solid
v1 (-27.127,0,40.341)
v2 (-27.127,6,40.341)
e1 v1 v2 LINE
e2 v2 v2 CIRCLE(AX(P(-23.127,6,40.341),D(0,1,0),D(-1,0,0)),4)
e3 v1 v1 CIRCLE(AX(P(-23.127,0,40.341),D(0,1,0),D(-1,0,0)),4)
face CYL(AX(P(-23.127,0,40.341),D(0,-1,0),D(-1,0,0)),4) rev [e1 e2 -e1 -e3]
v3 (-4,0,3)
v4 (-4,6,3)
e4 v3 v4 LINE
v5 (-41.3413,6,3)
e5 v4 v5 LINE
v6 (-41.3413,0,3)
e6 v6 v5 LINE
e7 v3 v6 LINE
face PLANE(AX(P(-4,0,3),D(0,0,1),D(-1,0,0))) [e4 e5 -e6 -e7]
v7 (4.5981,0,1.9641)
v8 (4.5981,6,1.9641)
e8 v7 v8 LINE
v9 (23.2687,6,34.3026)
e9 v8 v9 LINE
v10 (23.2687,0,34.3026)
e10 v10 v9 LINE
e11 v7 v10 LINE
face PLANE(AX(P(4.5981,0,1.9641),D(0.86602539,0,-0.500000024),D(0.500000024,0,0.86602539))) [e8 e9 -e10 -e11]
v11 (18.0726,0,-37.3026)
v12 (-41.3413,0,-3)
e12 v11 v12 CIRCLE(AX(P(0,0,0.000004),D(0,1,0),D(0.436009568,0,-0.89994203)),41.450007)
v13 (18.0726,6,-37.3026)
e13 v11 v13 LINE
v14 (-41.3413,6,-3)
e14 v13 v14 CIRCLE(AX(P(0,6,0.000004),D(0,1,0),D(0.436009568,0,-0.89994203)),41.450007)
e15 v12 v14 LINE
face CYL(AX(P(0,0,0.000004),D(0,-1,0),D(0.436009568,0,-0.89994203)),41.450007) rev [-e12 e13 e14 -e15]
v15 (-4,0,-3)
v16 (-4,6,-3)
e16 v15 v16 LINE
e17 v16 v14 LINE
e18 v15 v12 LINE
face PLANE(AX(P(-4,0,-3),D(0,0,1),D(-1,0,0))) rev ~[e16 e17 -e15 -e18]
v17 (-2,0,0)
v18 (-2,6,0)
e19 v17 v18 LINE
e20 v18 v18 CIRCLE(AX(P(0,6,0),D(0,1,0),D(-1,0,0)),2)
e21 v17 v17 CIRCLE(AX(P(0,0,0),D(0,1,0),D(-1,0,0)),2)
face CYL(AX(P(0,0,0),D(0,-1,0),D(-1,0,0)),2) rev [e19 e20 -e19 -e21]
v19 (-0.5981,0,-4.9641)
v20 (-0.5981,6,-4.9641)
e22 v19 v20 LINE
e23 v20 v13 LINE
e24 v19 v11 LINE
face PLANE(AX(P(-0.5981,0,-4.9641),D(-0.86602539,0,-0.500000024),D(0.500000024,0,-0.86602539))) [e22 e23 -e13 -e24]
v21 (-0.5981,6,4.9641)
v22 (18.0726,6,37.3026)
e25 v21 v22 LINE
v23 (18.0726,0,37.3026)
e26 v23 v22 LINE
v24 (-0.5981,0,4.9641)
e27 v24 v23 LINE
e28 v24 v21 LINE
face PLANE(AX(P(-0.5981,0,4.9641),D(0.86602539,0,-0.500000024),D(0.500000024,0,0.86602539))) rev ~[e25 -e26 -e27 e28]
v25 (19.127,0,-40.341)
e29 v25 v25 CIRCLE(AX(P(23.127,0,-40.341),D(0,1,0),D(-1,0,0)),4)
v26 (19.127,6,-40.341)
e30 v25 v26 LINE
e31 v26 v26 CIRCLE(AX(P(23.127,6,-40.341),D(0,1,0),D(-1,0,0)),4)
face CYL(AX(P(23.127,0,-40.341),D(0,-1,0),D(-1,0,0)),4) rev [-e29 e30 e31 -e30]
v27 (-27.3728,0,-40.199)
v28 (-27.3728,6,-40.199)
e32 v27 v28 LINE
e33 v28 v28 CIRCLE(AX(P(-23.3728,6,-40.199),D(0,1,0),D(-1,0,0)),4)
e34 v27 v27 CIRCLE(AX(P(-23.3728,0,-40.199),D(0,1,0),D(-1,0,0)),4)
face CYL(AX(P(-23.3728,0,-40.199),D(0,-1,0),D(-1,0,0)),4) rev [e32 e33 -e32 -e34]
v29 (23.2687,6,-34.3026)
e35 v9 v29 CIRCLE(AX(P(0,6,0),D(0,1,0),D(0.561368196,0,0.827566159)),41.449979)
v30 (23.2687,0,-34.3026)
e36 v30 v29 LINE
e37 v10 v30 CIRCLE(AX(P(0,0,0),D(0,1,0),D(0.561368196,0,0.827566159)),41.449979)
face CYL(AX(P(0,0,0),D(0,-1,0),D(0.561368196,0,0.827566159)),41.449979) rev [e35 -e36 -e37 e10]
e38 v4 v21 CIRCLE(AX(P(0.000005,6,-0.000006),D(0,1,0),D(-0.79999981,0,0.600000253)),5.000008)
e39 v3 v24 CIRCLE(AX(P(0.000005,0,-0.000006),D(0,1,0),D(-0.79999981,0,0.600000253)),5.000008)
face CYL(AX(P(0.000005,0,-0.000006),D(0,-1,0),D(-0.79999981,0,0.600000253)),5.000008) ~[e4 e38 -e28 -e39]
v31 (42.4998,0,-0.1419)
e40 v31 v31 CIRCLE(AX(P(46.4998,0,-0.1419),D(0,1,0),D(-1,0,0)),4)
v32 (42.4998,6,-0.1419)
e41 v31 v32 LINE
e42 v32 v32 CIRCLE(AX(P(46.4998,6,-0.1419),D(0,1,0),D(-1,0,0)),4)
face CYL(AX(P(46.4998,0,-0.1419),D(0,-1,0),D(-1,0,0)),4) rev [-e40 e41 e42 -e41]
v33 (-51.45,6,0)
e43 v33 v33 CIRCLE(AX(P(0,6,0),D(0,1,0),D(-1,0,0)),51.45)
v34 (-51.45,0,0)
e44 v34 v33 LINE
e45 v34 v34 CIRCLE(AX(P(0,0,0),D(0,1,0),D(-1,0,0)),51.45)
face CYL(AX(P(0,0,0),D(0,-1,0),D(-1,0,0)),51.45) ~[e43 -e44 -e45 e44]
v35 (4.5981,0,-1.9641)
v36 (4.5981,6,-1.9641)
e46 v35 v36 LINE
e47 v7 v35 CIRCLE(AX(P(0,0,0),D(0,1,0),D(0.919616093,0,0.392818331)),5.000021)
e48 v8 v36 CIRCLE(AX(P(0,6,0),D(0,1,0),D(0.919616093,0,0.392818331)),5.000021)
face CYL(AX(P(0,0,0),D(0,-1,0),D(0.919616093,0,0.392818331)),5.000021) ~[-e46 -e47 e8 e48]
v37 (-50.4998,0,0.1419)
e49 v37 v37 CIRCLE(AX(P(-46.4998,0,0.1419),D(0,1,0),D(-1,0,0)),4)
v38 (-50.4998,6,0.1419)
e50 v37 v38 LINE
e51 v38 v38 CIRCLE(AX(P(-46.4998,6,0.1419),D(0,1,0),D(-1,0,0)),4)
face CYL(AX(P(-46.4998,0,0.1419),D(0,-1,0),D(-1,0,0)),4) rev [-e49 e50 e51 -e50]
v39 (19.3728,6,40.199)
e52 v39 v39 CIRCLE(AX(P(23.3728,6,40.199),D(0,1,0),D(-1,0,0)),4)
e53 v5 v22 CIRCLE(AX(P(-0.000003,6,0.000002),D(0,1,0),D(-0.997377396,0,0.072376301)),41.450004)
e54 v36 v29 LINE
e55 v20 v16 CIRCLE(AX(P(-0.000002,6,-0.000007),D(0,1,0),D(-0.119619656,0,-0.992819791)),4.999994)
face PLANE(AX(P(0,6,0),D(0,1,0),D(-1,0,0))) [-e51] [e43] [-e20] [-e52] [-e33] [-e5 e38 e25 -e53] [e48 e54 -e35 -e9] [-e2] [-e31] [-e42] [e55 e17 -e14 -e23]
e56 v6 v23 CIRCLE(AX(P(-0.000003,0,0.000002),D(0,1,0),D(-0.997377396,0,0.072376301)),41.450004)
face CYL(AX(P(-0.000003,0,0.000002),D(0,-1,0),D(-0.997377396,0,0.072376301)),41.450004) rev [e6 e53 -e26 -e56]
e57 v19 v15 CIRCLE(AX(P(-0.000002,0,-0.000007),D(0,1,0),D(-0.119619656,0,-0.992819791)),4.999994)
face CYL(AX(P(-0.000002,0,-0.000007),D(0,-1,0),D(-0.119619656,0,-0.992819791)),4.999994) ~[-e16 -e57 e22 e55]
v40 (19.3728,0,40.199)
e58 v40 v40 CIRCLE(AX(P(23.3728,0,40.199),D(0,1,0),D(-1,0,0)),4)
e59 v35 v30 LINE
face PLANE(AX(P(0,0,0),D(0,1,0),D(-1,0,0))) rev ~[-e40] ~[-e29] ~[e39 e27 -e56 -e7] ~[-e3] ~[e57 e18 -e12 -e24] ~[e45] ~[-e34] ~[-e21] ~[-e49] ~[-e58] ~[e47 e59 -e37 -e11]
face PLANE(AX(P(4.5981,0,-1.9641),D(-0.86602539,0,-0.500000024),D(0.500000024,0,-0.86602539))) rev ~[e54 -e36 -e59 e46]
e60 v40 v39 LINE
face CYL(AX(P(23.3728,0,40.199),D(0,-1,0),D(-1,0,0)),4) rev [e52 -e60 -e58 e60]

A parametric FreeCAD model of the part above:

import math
import FreeCAD as App
import Part
import Sketcher

V = App.Vector
Q = App.Units.Quantity

doc = App.newDocument("Part")
body = doc.addObject("PartDesign::Body", "Body")

sketch1 = body.newObject("Sketcher::SketchObject", "Sketch")
sketch1.AttachmentSupport = (doc.getObject("XZ_Plane"), [""])
sketch1.MapMode = "FlatFace"
sketch1.addGeometry(Part.Circle(V(0, 0, 0), V(0, 0, 1), 51.5), False)
sketch1.addGeometry(Part.Circle(V(23.1, -40.3, 0), V(0, 0, 1), 4), False)
sketch1.addGeometry(Part.Circle(V(46.5, -0.1, 0), V(0, 0, 1), 4), False)
sketch1.addGeometry(Part.Circle(V(-23.4, -40.2, 0), V(0, 0, 1), 4), False)
sketch1.addGeometry(Part.ArcOfCircle(Part.Circle(V(0, 0, 0), V(0, 0, 1), 5), math.radians(-143), math.radians(-97)), False)
sketch1.addGeometry(Part.LineSegment(V(-4, -3, 0), V(-41.3, -3, 0)), False)
sketch1.addGeometry(Part.ArcOfCircle(Part.Circle(V(0, 0, 0), V(0, 0, 1), 41.5), math.radians(-176), math.radians(-64)), False)
sketch1.addGeometry(Part.LineSegment(V(18.1, -37.3, 0), V(-0.6, -5, 0)), False)
sketch1.addGeometry(Part.ArcOfCircle(Part.Circle(V(0, 0, 0), V(0, 0, 1), 5), math.radians(-23), math.radians(23)), False)
sketch1.addGeometry(Part.LineSegment(V(4.6, -2, 0), V(23.3, -34.3, 0)), False)
sketch1.addGeometry(Part.ArcOfCircle(Part.Circle(V(0, 0, 0), V(0, 0, 1), 41.4), math.radians(-56), math.radians(56)), False)
sketch1.addGeometry(Part.LineSegment(V(23.3, 34.3, 0), V(4.6, 2, 0)), False)
sketch1.addGeometry(Part.Circle(V(23.4, 40.2, 0), V(0, 0, 1), 4), False)
sketch1.addGeometry(Part.Circle(V(0, 0, 0), V(0, 0, 1), 2), False)
sketch1.addGeometry(Part.ArcOfCircle(Part.Circle(V(0, 0, 0), V(0, 0, 1), 5), math.radians(97), math.radians(143)), False)
sketch1.addGeometry(Part.LineSegment(V(-0.6, 5, 0), V(18.1, 37.3, 0)), False)
sketch1.addGeometry(Part.ArcOfCircle(Part.Circle(V(0, 0, 0), V(0, 0, 1), 41.5), math.radians(64), math.radians(176)), False)
sketch1.addGeometry(Part.LineSegment(V(-41.3, 3, 0), V(-4, 3, 0)), False)
sketch1.addGeometry(Part.Circle(V(-46.5, 0.1, 0), V(0, 0, 1), 4), False)
sketch1.addGeometry(Part.Circle(V(-23.1, 40.3, 0), V(0, 0, 1), 4), False)
sketch1.addConstraint(Sketcher.Constraint("Coincident", 4, 1, 5, 1))
sketch1.addConstraint(Sketcher.Constraint("Coincident", 5, 2, 6, 1))
sketch1.addConstraint(Sketcher.Constraint("Coincident", 6, 2, 7, 1))
sketch1.addConstraint(Sketcher.Constraint("Coincident", 7, 2, 4, 2))
sketch1.addConstraint(Sketcher.Constraint("Coincident", 8, 1, 9, 1))
sketch1.addConstraint(Sketcher.Constraint("Coincident", 9, 2, 10, 1))
sketch1.addConstraint(Sketcher.Constraint("Coincident", 10, 2, 11, 1))
sketch1.addConstraint(Sketcher.Constraint("Coincident", 11, 2, 8, 2))
sketch1.addConstraint(Sketcher.Constraint("Coincident", 14, 1, 15, 1))
sketch1.addConstraint(Sketcher.Constraint("Coincident", 15, 2, 16, 1))
sketch1.addConstraint(Sketcher.Constraint("Coincident", 16, 2, 17, 1))
sketch1.addConstraint(Sketcher.Constraint("Coincident", 17, 2, 14, 2))
sketch1.addConstraint(Sketcher.Constraint("Horizontal", 5))
sketch1.addConstraint(Sketcher.Constraint("Horizontal", 17))
sketch1.addConstraint(Sketcher.Constraint("Coincident", 0, 3, -1, 1))
sketch1.addConstraint(Sketcher.Constraint("Coincident", 4, 3, -1, 1))
sketch1.addConstraint(Sketcher.Constraint("Coincident", 6, 3, -1, 1))
sketch1.addConstraint(Sketcher.Constraint("Coincident", 8, 3, -1, 1))
sketch1.addConstraint(Sketcher.Constraint("Coincident", 10, 3, -1, 1))
sketch1.addConstraint(Sketcher.Constraint("Coincident", 13, 3, -1, 1))
sketch1.addConstraint(Sketcher.Constraint("Coincident", 14, 3, -1, 1))
sketch1.addConstraint(Sketcher.Constraint("Coincident", 16, 3, -1, 1))
sketch1.addConstraint(Sketcher.Constraint("Equal", 1, 2))
sketch1.addConstraint(Sketcher.Constraint("Equal", 2, 3))
sketch1.addConstraint(Sketcher.Constraint("Equal", 4, 8))
sketch1.addConstraint(Sketcher.Constraint("Equal", 6, 10))
sketch1.addConstraint(Sketcher.Constraint("Equal", 3, 12))
sketch1.addConstraint(Sketcher.Constraint("Equal", 8, 14))
sketch1.addConstraint(Sketcher.Constraint("Equal", 10, 16))
sketch1.addConstraint(Sketcher.Constraint("Equal", 12, 18))
sketch1.addConstraint(Sketcher.Constraint("Equal", 18, 19))
sketch1.addConstraint(Sketcher.Constraint("Symmetric", 3, 3, 12, 3, -1, 1))
sketch1.addConstraint(Sketcher.Constraint("Symmetric", 2, 3, 18, 3, -1, 1))
sketch1.addConstraint(Sketcher.Constraint("Symmetric", 1, 3, 19, 3, -1, 1))
sketch1.addConstraint(Sketcher.Constraint("Parallel", 7, 9))
sketch1.addConstraint(Sketcher.Constraint("Parallel", 11, 15))
sketch1.addConstraint(Sketcher.Constraint("Vertical", 9, 2, 10, 2))
sketch1.addConstraint(Sketcher.Constraint("Vertical", 8, 1, 11, 2))
sketch1.addConstraint(Sketcher.Constraint("Vertical", 7, 2, 14, 1))
sketch1.addConstraint(Sketcher.Constraint("Vertical", 5, 2, 16, 2))
sketch1.addConstraint(Sketcher.Constraint("Equal", 7, 9))
sketch1.addConstraint(Sketcher.Constraint("Diameter", 1, 8.0))
sketch1.addConstraint(Sketcher.Constraint("Diameter", 13, 4.0))
sketch1.addConstraint(Sketcher.Constraint("Diameter", 0, 102.9))
sketch1.addConstraint(Sketcher.Constraint("DistanceX", 4, 1, -1, 1, 4.0))
sketch1.addConstraint(Sketcher.Constraint("Radius", 4, 5.0))
sketch1.addConstraint(Sketcher.Constraint("Angle", 7, Q("120 deg")))
sketch1.addConstraint(Sketcher.Constraint("Radius", 6, 41.45))
sketch1.addConstraint(Sketcher.Constraint("DistanceY", 6, 2, 9, 2, 3.0))
sketch1.addConstraint(Sketcher.Constraint("DistanceX", -1, 1, 2, 3, 46.4998))
sketch1.addConstraint(Sketcher.Constraint("DistanceX", 3, 3, 1, 3, 46.4998))
sketch1.addConstraint(Sketcher.Constraint("DistanceX", -1, 1, 1, 3, 23.127))
sketch1.addConstraint(Sketcher.Constraint("DistanceY", 1, 3, -1, 1, 40.341))
sketch1.addConstraint(Sketcher.Constraint("DistanceY", 2, 3, -1, 1, 0.142))
sketch1.addConstraint(Sketcher.Constraint("DistanceY", 3, 3, -1, 1, 40.199))
pad1 = body.newObject("PartDesign::Pad", "Pad")
pad1.Profile = sketch1
pad1.Length = 6
pad1.Reversed = True

doc.recompute()
